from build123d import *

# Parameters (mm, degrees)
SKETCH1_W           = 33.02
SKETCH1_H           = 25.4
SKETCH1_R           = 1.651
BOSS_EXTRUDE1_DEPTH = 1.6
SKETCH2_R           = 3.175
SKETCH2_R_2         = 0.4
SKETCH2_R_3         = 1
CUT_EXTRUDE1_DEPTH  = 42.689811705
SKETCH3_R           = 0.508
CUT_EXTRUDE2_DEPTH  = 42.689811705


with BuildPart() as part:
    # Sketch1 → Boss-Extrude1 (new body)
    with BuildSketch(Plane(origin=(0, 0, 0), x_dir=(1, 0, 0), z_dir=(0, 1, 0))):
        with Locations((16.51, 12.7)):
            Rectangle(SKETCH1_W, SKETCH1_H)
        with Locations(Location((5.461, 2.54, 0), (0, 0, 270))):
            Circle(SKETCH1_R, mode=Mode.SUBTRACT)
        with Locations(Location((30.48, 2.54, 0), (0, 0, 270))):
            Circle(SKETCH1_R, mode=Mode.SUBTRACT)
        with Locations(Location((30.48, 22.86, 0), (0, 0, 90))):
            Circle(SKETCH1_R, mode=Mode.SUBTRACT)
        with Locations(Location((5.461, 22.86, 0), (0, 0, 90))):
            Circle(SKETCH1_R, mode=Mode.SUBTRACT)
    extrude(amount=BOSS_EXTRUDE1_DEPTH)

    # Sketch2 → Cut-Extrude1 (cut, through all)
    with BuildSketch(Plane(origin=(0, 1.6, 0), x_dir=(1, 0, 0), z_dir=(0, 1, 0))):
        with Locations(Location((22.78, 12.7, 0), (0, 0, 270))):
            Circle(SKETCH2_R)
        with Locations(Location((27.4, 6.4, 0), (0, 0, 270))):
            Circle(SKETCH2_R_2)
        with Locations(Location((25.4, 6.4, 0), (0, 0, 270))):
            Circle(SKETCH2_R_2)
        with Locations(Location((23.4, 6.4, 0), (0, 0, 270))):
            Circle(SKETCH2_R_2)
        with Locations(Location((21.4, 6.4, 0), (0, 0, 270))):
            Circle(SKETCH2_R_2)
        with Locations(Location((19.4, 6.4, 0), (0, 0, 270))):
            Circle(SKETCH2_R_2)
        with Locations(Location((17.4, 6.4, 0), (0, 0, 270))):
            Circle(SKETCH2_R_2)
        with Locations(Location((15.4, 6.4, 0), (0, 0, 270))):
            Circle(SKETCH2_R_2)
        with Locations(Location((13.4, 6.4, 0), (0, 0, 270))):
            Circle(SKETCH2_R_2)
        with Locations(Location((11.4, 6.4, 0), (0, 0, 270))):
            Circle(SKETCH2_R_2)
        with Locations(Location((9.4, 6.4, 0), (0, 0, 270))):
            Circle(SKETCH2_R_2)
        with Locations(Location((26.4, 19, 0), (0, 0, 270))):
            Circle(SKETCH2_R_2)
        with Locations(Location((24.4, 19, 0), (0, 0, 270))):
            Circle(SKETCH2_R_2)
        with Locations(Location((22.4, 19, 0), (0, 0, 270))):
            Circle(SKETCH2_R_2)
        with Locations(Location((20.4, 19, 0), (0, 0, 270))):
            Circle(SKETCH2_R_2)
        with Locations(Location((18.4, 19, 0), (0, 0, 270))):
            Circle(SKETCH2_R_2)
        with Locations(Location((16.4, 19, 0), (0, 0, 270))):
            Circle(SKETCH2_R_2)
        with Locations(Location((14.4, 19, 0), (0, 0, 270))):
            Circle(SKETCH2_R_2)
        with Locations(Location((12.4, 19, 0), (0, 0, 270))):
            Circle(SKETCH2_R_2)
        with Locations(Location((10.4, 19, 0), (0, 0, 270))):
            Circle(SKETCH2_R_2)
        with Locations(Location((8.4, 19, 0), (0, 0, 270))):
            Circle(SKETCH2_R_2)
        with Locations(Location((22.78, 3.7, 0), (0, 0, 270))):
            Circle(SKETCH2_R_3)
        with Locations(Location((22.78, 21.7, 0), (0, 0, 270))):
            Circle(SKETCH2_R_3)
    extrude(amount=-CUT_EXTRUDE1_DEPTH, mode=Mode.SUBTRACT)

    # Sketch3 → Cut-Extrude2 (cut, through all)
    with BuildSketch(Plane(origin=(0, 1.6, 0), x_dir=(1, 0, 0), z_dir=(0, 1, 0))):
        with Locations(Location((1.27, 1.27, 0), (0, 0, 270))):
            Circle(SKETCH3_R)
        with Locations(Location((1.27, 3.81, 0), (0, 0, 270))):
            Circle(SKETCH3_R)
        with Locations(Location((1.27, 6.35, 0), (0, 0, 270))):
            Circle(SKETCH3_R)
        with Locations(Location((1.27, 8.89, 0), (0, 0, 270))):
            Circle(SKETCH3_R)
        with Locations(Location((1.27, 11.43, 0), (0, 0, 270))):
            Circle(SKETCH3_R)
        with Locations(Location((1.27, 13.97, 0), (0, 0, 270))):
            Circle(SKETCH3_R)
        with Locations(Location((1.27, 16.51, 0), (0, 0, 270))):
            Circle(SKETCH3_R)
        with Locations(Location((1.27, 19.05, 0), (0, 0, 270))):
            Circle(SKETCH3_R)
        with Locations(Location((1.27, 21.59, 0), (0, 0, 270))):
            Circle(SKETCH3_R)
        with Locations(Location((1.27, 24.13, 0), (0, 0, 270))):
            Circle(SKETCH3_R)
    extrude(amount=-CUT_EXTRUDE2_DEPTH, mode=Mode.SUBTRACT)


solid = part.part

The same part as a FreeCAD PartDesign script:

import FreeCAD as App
import Part
import Sketcher
from FreeCAD import Vector
Q = App.Units.Quantity

doc = App.newDocument("Part")
params = doc.addObject("Spreadsheet::Sheet", "Params")
for row, (alias, value) in enumerate([
    ("sketch1_diameter", "0.13 in"),
    ("sketch1_height", "1 in"),
    ("sketch1_width", "1.3 in"),
    ("pad1_length", "1.6 mm"),
    ("sketch2_diameter", "0.25 in"),
    ("sketch3_diameter", "0.04 in"),
], start=1):
    params.set(f"A{row}", alias)
    params.set(f"B{row}", "=" + value)
    params.setAlias(f"B{row}", alias)

body = doc.addObject("PartDesign::Body", "Body")

# Sketch on XZ plane
sketch1 = body.newObject("Sketcher::SketchObject", "Sketch")
sketch1.AttachmentSupport = (doc.getObject("XZ_Plane"), [""])
sketch1.MapMode = "FlatFace"
sketch1.addGeometry(Part.LineSegment(Vector(0, -25.4, 0), Vector(0, 0, 0)), False)
sketch1.addGeometry(Part.LineSegment(Vector(0, 0, 0), Vector(33, 0, 0)), False)
sketch1.addGeometry(Part.LineSegment(Vector(33, 0, 0), Vector(33, -25.4, 0)), False)
sketch1.addGeometry(Part.LineSegment(Vector(33, -25.4, 0), Vector(0, -25.4, 0)), False)
sketch1.addGeometry(Part.Circle(Vector(5.5, -2.5, 0), Vector(0, 0, 1), 1.7), False)
sketch1.addGeometry(Part.Circle(Vector(30.5, -2.5, 0), Vector(0, 0, 1), 1.7), False)
sketch1.addGeometry(Part.Circle(Vector(5.5, -22.9, 0), Vector(0, 0, 1), 1.7), False)
sketch1.addGeometry(Part.Circle(Vector(30.5, -22.9, 0), Vector(0, 0, 1), 1.7), False)
sketch1.addConstraint(Sketcher.Constraint("Coincident", 0, 2, 1, 1))
sketch1.addConstraint(Sketcher.Constraint("Coincident", 1, 2, 2, 1))
sketch1.addConstraint(Sketcher.Constraint("Coincident", 2, 2, 3, 1))
sketch1.addConstraint(Sketcher.Constraint("Coincident", 3, 2, 0, 1))
sketch1.addConstraint(Sketcher.Constraint("Vertical", 0))
sketch1.addConstraint(Sketcher.Constraint("Horizontal", 1))
sketch1.addConstraint(Sketcher.Constraint("Vertical", 2))
sketch1.addConstraint(Sketcher.Constraint("Horizontal", 3))
sketch1.addConstraint(Sketcher.Constraint("Coincident", 0, 2, -1, 1))
sketch1.addConstraint(Sketcher.Constraint("Equal", 4, 5))
sketch1.addConstraint(Sketcher.Constraint("Equal", 5, 6))
sketch1.addConstraint(Sketcher.Constraint("Equal", 6, 7))
sketch1.addConstraint(Sketcher.Constraint("Horizontal", 4, 3, 5, 3))
sketch1.addConstraint(Sketcher.Constraint("Horizontal", 6, 3, 7, 3))
sketch1.addConstraint(Sketcher.Constraint("Vertical", 4, 3, 6, 3))
sketch1.addConstraint(Sketcher.Constraint("Vertical", 5, 3, 7, 3))
sketch1.addConstraint(Sketcher.Constraint("Diameter", 4, Q("0.13 in")))
sketch1.addConstraint(Sketcher.Constraint("DistanceY", 0, 1, 0, 2, Q("1 in")))
sketch1.addConstraint(Sketcher.Constraint("DistanceX", 1, 1, 1, 2, Q("1.3 in")))
sketch1.addConstraint(Sketcher.Constraint("DistanceY", 4, 3, -1, 1, Q("0.1 in")))
sketch1.addConstraint(Sketcher.Constraint("DistanceX", -1, 1, 5, 3, Q("1.2 in")))
sketch1.addConstraint(Sketcher.Constraint("DistanceY", 6, 3, -1, 1, Q("0.9 in")))
sketch1.addConstraint(Sketcher.Constraint("DistanceX", -1, 1, 4, 3, Q("0.215 in")))
sketch1.setExpression("Constraints[16]", "Params.sketch1_diameter")
sketch1.setExpression("Constraints[17]", "Params.sketch1_height")
sketch1.setExpression("Constraints[18]", "Params.sketch1_width")
pad1 = body.newObject("PartDesign::Pad", "Pad")
pad1.Profile = sketch1
pad1.setExpression("Length", "Params.pad1_length")
pad1.Reversed = True

# Sketch on XZ plane
sketch2 = body.newObject("Sketcher::SketchObject", "Sketch001")
sketch2.AttachmentSupport = (doc.getObject("XZ_Plane"), [""])
sketch2.MapMode = "FlatFace"
sketch2.AttachmentOffset = App.Placement(Vector(0, 0, -1.6), App.Rotation())
sketch2.addGeometry(Part.Circle(Vector(22.78, -12.7, 0), Vector(0, 0, 1), 3.17), False)
sketch2.addGeometry(Part.Circle(Vector(27.4, -6.4, 0), Vector(0, 0, 1), 0.4), False)
sketch2.addGeometry(Part.Circle(Vector(25.4, -6.4, 0), Vector(0, 0, 1), 0.4), False)
sketch2.addGeometry(Part.Circle(Vector(23.4, -6.4, 0), Vector(0, 0, 1), 0.4), False)
sketch2.addGeometry(Part.Circle(Vector(21.4, -6.4, 0), Vector(0, 0, 1), 0.4), False)
sketch2.addGeometry(Part.Circle(Vector(19.4, -6.4, 0), Vector(0, 0, 1), 0.4), False)
sketch2.addGeometry(Part.Circle(Vector(17.4, -6.4, 0), Vector(0, 0, 1), 0.4), False)
sketch2.addGeometry(Part.Circle(Vector(15.4, -6.4, 0), Vector(0, 0, 1), 0.4), False)
sketch2.addGeometry(Part.Circle(Vector(13.4, -6.4, 0), Vector(0, 0, 1), 0.4), False)
sketch2.addGeometry(Part.Circle(Vector(11.4, -6.4, 0), Vector(0, 0, 1), 0.4), False)
sketch2.addGeometry(Part.Circle(Vector(9.4, -6.4, 0), Vector(0, 0, 1), 0.4), False)
sketch2.addGeometry(Part.Circle(Vector(26.4, -19, 0), Vector(0, 0, 1), 0.4), False)
sketch2.addGeometry(Part.Circle(Vector(24.4, -19, 0), Vector(0, 0, 1), 0.4), False)
sketch2.addGeometry(Part.Circle(Vector(22.4, -19, 0), Vector(0, 0, 1), 0.4), False)
sketch2.addGeometry(Part.Circle(Vector(20.4, -19, 0), Vector(0, 0, 1), 0.4), False)
sketch2.addGeometry(Part.Circle(Vector(18.4, -19, 0), Vector(0, 0, 1), 0.4), False)
sketch2.addGeometry(Part.Circle(Vector(16.4, -19, 0), Vector(0, 0, 1), 0.4), False)
sketch2.addGeometry(Part.Circle(Vector(14.4, -19, 0), Vector(0, 0, 1), 0.4), False)
sketch2.addGeometry(Part.Circle(Vector(12.4, -19, 0), Vector(0, 0, 1), 0.4), False)
sketch2.addGeometry(Part.Circle(Vector(10.4, -19, 0), Vector(0, 0, 1), 0.4), False)
sketch2.addGeometry(Part.Circle(Vector(8.4, -19, 0), Vector(0, 0, 1), 0.4), False)
sketch2.addGeometry(Part.Circle(Vector(22.78, -3.7, 0), Vector(0, 0, 1), 1), False)
sketch2.addGeometry(Part.Circle(Vector(22.78, -21.7, 0), Vector(0, 0, 1), 1), False)
sketch2.addConstraint(Sketcher.Constraint("Equal", 1, 2))
sketch2.addConstraint(Sketcher.Constraint("Equal", 2, 3))
sketch2.addConstraint(Sketcher.Constraint("Equal", 3, 4))
sketch2.addConstraint(Sketcher.Constraint("Equal", 4, 5))
sketch2.addConstraint(Sketcher.Constraint("Equal", 5, 6))
sketch2.addConstraint(Sketcher.Constraint("Equal", 6, 7))
sketch2.addConstraint(Sketcher.Constraint("Equal", 7, 8))
sketch2.addConstraint(Sketcher.Constraint("Equal", 8, 9))
sketch2.addConstraint(Sketcher.Constraint("Equal", 9, 10))
sketch2.addConstraint(Sketcher.Constraint("Equal", 10, 11))
sketch2.addConstraint(Sketcher.Constraint("Equal", 11, 12))
sketch2.addConstraint(Sketcher.Constraint("Equal", 12, 13))
sketch2.addConstraint(Sketcher.Constraint("Equal", 13, 14))
sketch2.addConstraint(Sketcher.Constraint("Equal", 14, 15))
sketch2.addConstraint(Sketcher.Constraint("Equal", 15, 16))
sketch2.addConstraint(Sketcher.Constraint("Equal", 16, 17))
sketch2.addConstraint(Sketcher.Constraint("Equal", 17, 18))
sketch2.addConstraint(Sketcher.Constraint("Equal", 18, 19))
sketch2.addConstraint(Sketcher.Constraint("Equal", 19, 20))
sketch2.addConstraint(Sketcher.Constraint("Equal", 21, 22))
sketch2.addConstraint(Sketcher.Constraint("Horizontal", 1, 3, 2, 3))
sketch2.addConstraint(Sketcher.Constraint("Horizontal", 2, 3, 3, 3))
sketch2.addConstraint(Sketcher.Constraint("Horizontal", 3, 3, 4, 3))
sketch2.addConstraint(Sketcher.Constraint("Horizontal", 4, 3, 5, 3))
sketch2.addConstraint(Sketcher.Constraint("Horizontal", 5, 3, 6, 3))
sketch2.addConstraint(Sketcher.Constraint("Horizontal", 6, 3, 7, 3))
sketch2.addConstraint(Sketcher.Constraint("Horizontal", 7, 3, 8, 3))
sketch2.addConstraint(Sketcher.Constraint("Horizontal", 8, 3, 9, 3))
sketch2.addConstraint(Sketcher.Constraint("Horizontal", 9, 3, 10, 3))
sketch2.addConstraint(Sketcher.Constraint("Horizontal", 11, 3, 12, 3))
sketch2.addConstraint(Sketcher.Constraint("Horizontal", 12, 3, 13, 3))
sketch2.addConstraint(Sketcher.Constraint("Horizontal", 13, 3, 14, 3))
sketch2.addConstraint(Sketcher.Constraint("Horizontal", 14, 3, 15, 3))
sketch2.addConstraint(Sketcher.Constraint("Horizontal", 15, 3, 16, 3))
sketch2.addConstraint(Sketcher.Constraint("Horizontal", 16, 3, 17, 3))
sketch2.addConstraint(Sketcher.Constraint("Horizontal", 17, 3, 18, 3))
sketch2.addConstraint(Sketcher.Constraint("Horizontal", 18, 3, 19, 3))
sketch2.addConstraint(Sketcher.Constraint("Horizontal", 19, 3, 20, 3))
sketch2.addConstraint(Sketcher.Constraint("Vertical", 0, 3, 21, 3))
sketch2.addConstraint(Sketcher.Constraint("Vertical", 21, 3, 22, 3))
sketch2.addConstraint(Sketcher.Constraint("Diameter", 0, Q("0.25 in")))
sketch2.addConstraint(Sketcher.Constraint("DistanceX", -1, 1, 2, 3, Q("1 in")))
sketch2.addConstraint(Sketcher.Constraint("DistanceY", 0, 3, -1, 1, Q("0.5 in")))
sketch2.addConstraint(Sketcher.Constraint("Diameter", 1, Q("0.8 mm")))
sketch2.addConstraint(Sketcher.Constraint("Diameter", 21, Q("2 mm")))
sketch2.addConstraint(Sketcher.Constraint("DistanceX", -1, 1, 0, 3, Q("22.78 mm")))
sketch2.addConstraint(Sketcher.Constraint("DistanceX", -1, 1, 1, 3, Q("27.4 mm")))
sketch2.addConstraint(Sketcher.Constraint("DistanceY", 1, 3, -1, 1, Q("6.4 mm")))
sketch2.addConstraint(Sketcher.Constraint("DistanceX", -1, 1, 3, 3, Q("23.4 mm")))
sketch2.addConstraint(Sketcher.Constraint("DistanceX", -1, 1, 4, 3, Q("21.4 mm")))
sketch2.addConstraint(Sketcher.Constraint("DistanceX", -1, 1, 5, 3, Q("19.4 mm")))
sketch2.addConstraint(Sketcher.Constraint("DistanceX", -1, 1, 6, 3, Q("17.4 mm")))
sketch2.addConstraint(Sketcher.Constraint("DistanceX", -1, 1, 7, 3, Q("15.4 mm")))
sketch2.addConstraint(Sketcher.Constraint("DistanceX", -1, 1, 8, 3, Q("13.4 mm")))
sketch2.addConstraint(Sketcher.Constraint("DistanceX", -1, 1, 9, 3, Q("11.4 mm")))
sketch2.addConstraint(Sketcher.Constraint("DistanceX", -1, 1, 10, 3, Q("9.4 mm")))
sketch2.addConstraint(Sketcher.Constraint("DistanceX", -1, 1, 11, 3, Q("26.4 mm")))
sketch2.addConstraint(Sketcher.Constraint("DistanceY", 11, 3, -1, 1, Q("19 mm")))
sketch2.addConstraint(Sketcher.Constraint("DistanceX", -1, 1, 12, 3, Q("24.4 mm")))
sketch2.addConstraint(Sketcher.Constraint("DistanceX", -1, 1, 13, 3, Q("22.4 mm")))
sketch2.addConstraint(Sketcher.Constraint("DistanceX", -1, 1, 14, 3, Q("20.4 mm")))
sketch2.addConstraint(Sketcher.Constraint("DistanceX", -1, 1, 15, 3, Q("18.4 mm")))
sketch2.addConstraint(Sketcher.Constraint("DistanceX", -1, 1, 16, 3, Q("16.4 mm")))
sketch2.addConstraint(Sketcher.Constraint("DistanceX", -1, 1, 17, 3, Q("14.4 mm")))
sketch2.addConstraint(Sketcher.Constraint("DistanceX", -1, 1, 18, 3, Q("12.4 mm")))
sketch2.addConstraint(Sketcher.Constraint("DistanceX", -1, 1, 19, 3, Q("10.4 mm")))
sketch2.addConstraint(Sketcher.Constraint("DistanceX", -1, 1, 20, 3, Q("8.4 mm")))
sketch2.addConstraint(Sketcher.Constraint("DistanceY", 21, 3, -1, 1, Q("3.7 mm")))
sketch2.addConstraint(Sketcher.Constraint("DistanceY", 22, 3, -1, 1, Q("21.7 mm")))
sketch2.setExpression("Constraints[40]", "Params.sketch2_diameter")
pocket1 = body.newObject("PartDesign::Pocket", "Pocket")
pocket1.Profile = sketch2
pocket1.Type = "ThroughAll"
pocket1.Reversed = True

# Sketch on XZ plane
sketch3 = body.newObject("Sketcher::SketchObject", "Sketch002")
sketch3.AttachmentSupport = (doc.getObject("XZ_Plane"), [""])
sketch3.MapMode = "FlatFace"
sketch3.AttachmentOffset = App.Placement(Vector(0, 0, -1.6), App.Rotation())
sketch3.addGeometry(Part.Circle(Vector(1.3, -1.3, 0), Vector(0, 0, 1), 0.5), False)
sketch3.addGeometry(Part.Circle(Vector(1.3, -3.8, 0), Vector(0, 0, 1), 0.5), False)
sketch3.addGeometry(Part.Circle(Vector(1.3, -6.3, 0), Vector(0, 0, 1), 0.5), False)
sketch3.addGeometry(Part.Circle(Vector(1.3, -8.9, 0), Vector(0, 0, 1), 0.5), False)
sketch3.addGeometry(Part.Circle(Vector(1.3, -11.4, 0), Vector(0, 0, 1), 0.5), False)
sketch3.addGeometry(Part.Circle(Vector(1.3, -14, 0), Vector(0, 0, 1), 0.5), False)
sketch3.addGeometry(Part.Circle(Vector(1.3, -16.5, 0), Vector(0, 0, 1), 0.5), False)
sketch3.addGeometry(Part.Circle(Vector(1.3, -19.1, 0), Vector(0, 0, 1), 0.5), False)
sketch3.addGeometry(Part.Circle(Vector(1.3, -21.6, 0), Vector(0, 0, 1), 0.5), False)
sketch3.addGeometry(Part.Circle(Vector(1.3, -24.1, 0), Vector(0, 0, 1), 0.5), False)
sketch3.addConstraint(Sketcher.Constraint("Equal", 0, 1))
sketch3.addConstraint(Sketcher.Constraint("Equal", 1, 2))
sketch3.addConstraint(Sketcher.Constraint("Equal", 2, 3))
sketch3.addConstraint(Sketcher.Constraint("Equal", 3, 4))
sketch3.addConstraint(Sketcher.Constraint("Equal", 4, 5))
sketch3.addConstraint(Sketcher.Constraint("Equal", 5, 6))
sketch3.addConstraint(Sketcher.Constraint("Equal", 6, 7))
sketch3.addConstraint(Sketcher.Constraint("Equal", 7, 8))
sketch3.addConstraint(Sketcher.Constraint("Equal", 8, 9))
sketch3.addConstraint(Sketcher.Constraint("Vertical", 0, 3, 1, 3))
sketch3.addConstraint(Sketcher.Constraint("Vertical", 1, 3, 2, 3))
sketch3.addConstraint(Sketcher.Constraint("Vertical", 2, 3, 3, 3))
sketch3.addConstraint(Sketcher.Constraint("Vertical", 3, 3, 4, 3))
sketch3.addConstraint(Sketcher.Constraint("Vertical", 4, 3, 5, 3))
sketch3.addConstraint(Sketcher.Constraint("Vertical", 5, 3, 6, 3))
sketch3.addConstraint(Sketcher.Constraint("Vertical", 6, 3, 7, 3))
sketch3.addConstraint(Sketcher.Constraint("Vertical", 7, 3, 8, 3))
sketch3.addConstraint(Sketcher.Constraint("Vertical", 8, 3, 9, 3))
sketch3.addConstraint(Sketcher.Constraint("Diameter", 0, Q("0.04 in")))
sketch3.addConstraint(Sketcher.Constraint("DistanceY", 1, 3, 0, 3, Q("0.1 in")))
sketch3.addConstraint(Sketcher.Constraint("DistanceY", 2, 3, 1, 3, Q("0.1 in")))
sketch3.addConstraint(Sketcher.Constraint("DistanceY", 3, 3, 2, 3, Q("0.1 in")))
sketch3.addConstraint(Sketcher.Constraint("DistanceY", 4, 3, 3, 3, Q("0.1 in")))
sketch3.addConstraint(Sketcher.Constraint("DistanceY", 5, 3, 4, 3, Q("0.1 in")))
sketch3.addConstraint(Sketcher.Constraint("DistanceY", 6, 3, 5, 3, Q("0.1 in")))
sketch3.addConstraint(Sketcher.Constraint("DistanceY", 7, 3, 6, 3, Q("0.1 in")))
sketch3.addConstraint(Sketcher.Constraint("DistanceY", 8, 3, 7, 3, Q("0.1 in")))
sketch3.addConstraint(Sketcher.Constraint("DistanceY", 9, 3, 8, 3, Q("0.1 in")))
sketch3.addConstraint(Sketcher.Constraint("DistanceX", -1, 1, 0, 3, Q("0.05 in")))
sketch3.addConstraint(Sketcher.Constraint("DistanceY", 0, 3, -1, 1, Q("0.05 in")))
sketch3.setExpression("Constraints[18]", "Params.sketch3_diameter")
pocket2 = body.newObject("PartDesign::Pocket", "Pocket001")
pocket2.Profile = sketch3
pocket2.Type = "ThroughAll"
pocket2.Reversed = True

doc.recompute()
